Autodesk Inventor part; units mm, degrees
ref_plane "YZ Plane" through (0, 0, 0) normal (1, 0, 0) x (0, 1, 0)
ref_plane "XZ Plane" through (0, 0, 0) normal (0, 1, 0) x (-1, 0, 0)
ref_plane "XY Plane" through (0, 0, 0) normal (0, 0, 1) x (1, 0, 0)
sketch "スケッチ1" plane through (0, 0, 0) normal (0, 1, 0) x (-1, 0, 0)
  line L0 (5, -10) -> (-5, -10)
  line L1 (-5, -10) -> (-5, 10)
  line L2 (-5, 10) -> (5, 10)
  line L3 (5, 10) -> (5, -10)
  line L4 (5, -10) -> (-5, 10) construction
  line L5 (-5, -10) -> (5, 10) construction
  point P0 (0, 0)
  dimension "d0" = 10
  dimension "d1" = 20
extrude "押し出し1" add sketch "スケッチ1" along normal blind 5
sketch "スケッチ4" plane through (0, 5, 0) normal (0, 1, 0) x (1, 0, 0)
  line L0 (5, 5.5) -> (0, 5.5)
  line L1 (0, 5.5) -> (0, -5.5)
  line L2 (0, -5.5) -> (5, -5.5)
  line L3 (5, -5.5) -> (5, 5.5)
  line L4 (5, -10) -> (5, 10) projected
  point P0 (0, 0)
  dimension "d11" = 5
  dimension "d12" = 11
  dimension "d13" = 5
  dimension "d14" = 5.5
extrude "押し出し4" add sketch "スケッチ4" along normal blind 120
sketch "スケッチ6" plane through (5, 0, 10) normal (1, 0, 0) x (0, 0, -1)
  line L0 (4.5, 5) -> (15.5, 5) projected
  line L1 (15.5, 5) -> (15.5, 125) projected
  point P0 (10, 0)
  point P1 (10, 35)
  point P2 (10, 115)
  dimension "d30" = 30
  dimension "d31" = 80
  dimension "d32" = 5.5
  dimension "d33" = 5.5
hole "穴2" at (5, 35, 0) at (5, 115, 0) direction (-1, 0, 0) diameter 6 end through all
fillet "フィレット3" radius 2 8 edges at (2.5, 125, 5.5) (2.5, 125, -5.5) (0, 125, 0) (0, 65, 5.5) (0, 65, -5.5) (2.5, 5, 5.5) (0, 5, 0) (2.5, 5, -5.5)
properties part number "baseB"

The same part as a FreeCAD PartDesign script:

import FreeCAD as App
import Part
import Sketcher

V = App.Vector
Q = App.Units.Quantity


def edges_at(feature, points):
    """Names of the edges that pass closest to the given points."""
    edges = feature.Shape.Edges
    near = lambda p: min(range(len(edges)), key=lambda i: edges[i].distToShape(Part.Vertex(*p))[0])
    return sorted({f"Edge{near(p) + 1}" for p in points})

doc = App.newDocument("Part")
params = doc.addObject("Spreadsheet::Sheet", "Params")
for row, (alias, value) in enumerate([
    ("sketch1_width", "10 mm"),
    ("sketch1_height", "20 mm"),
    ("pad1_length", "5 mm"),
    ("sketch2_width", "5 mm"),
    ("sketch2_height", "11 mm"),
    ("pad2_length", "120 mm"),
    ("sketch3_diameter", "6 mm"),
    ("hole_diameter", "6 mm"),
    ("fillet_radius", "2 mm"),
], start=1):
    params.set(f"A{row}", alias)
    params.set(f"B{row}", "=" + value)
    params.setAlias(f"B{row}", alias)

body = doc.addObject("PartDesign::Body", "Body")

# Sketch on XZ plane
sketch1 = body.newObject("Sketcher::SketchObject", "Sketch")
sketch1.AttachmentSupport = (doc.getObject("XZ_Plane"), [""])
sketch1.MapMode = "FlatFace"
sketch1.addGeometry([
    Part.LineSegment(V(5, -10, 0), V(-5, -10, 0)),
    Part.LineSegment(V(-5, -10, 0), V(-5, 10, 0)),
    Part.LineSegment(V(-5, 10, 0), V(5, 10, 0)),
    Part.LineSegment(V(5, 10, 0), V(5, -10, 0)),
], False)
sketch1.addConstraint([
    Sketcher.Constraint("Coincident", 0, 2, 1, 1),
    Sketcher.Constraint("Coincident", 1, 2, 2, 1),
    Sketcher.Constraint("Coincident", 2, 2, 3, 1),
    Sketcher.Constraint("Coincident", 3, 2, 0, 1),
    Sketcher.Constraint("Horizontal", 0),
    Sketcher.Constraint("Vertical", 1),
    Sketcher.Constraint("Horizontal", 2),
    Sketcher.Constraint("Vertical", 3),
    Sketcher.Constraint("Symmetric", 0, 2, 2, 2, -1, 1),
    Sketcher.Constraint("DistanceX", 0, 2, 0, 1, Q("10 mm")),
    Sketcher.Constraint("DistanceY", 1, 1, 1, 2, Q("20 mm")),
])
sketch1.setExpression("Constraints[9]", "Params.sketch1_width")
sketch1.setExpression("Constraints[10]", "Params.sketch1_height")
pad1 = body.newObject("PartDesign::Pad", "Pad")
pad1.Profile = sketch1
pad1.setExpression("Length", "Params.pad1_length")
pad1.Reversed = True

# Sketch on XZ plane
sketch2 = body.newObject("Sketcher::SketchObject", "Sketch001")
sketch2.AttachmentSupport = (doc.getObject("XZ_Plane"), [""])
sketch2.MapMode = "FlatFace"
sketch2.AttachmentOffset = App.Placement(V(0, 0, -5), App.Rotation())
sketch2.addGeometry([
    Part.LineSegment(V(5, 6, 0), V(5, -6, 0)),
    Part.LineSegment(V(5, -6, 0), V(0, -6, 0)),
    Part.LineSegment(V(0, -6, 0), V(0, 6, 0)),
    Part.LineSegment(V(0, 6, 0), V(5, 6, 0)),
], False)
sketch2.addConstraint([
    Sketcher.Constraint("Coincident", 0, 2, 1, 1),
    Sketcher.Constraint("Coincident", 1, 2, 2, 1),
    Sketcher.Constraint("Coincident", 2, 2, 3, 1),
    Sketcher.Constraint("Coincident", 3, 2, 0, 1),
    Sketcher.Constraint("Vertical", 0),
    Sketcher.Constraint("Horizontal", 1),
    Sketcher.Constraint("Vertical", 2),
    Sketcher.Constraint("Horizontal", 3),
    Sketcher.Constraint("Symmetric", 1, 2, 2, 2, -1, 1),
    Sketcher.Constraint("DistanceX", 1, 2, 1, 1, Q("5 mm")),
    Sketcher.Constraint("DistanceY", 0, 2, 0, 1, Q("11 mm")),
])
sketch2.setExpression("Constraints[9]", "Params.sketch2_width")
sketch2.setExpression("Constraints[10]", "Params.sketch2_height")
pad2 = body.newObject("PartDesign::Pad", "Pad001")
pad2.Profile = sketch2
pad2.setExpression("Length", "Params.pad2_length")
pad2.Reversed = True

# Sketch on YZ plane
sketch3 = body.newObject("Sketcher::SketchObject", "Sketch002")
sketch3.AttachmentSupport = (doc.getObject("YZ_Plane"), [""])
sketch3.MapMode = "FlatFace"
sketch3.AttachmentOffset = App.Placement(V(0, 0, 5), App.Rotation())
sketch3.addGeometry([
    Part.Circle(V(35, 0, 0), V(0, 0, 1), 3),
    Part.Circle(V(115, 0, 0), V(0, 0, 1), 3),
], False)
sketch3.addConstraint([
    Sketcher.Constraint("Equal", 0, 1),
    Sketcher.Constraint("PointOnObject", 0, 3, -1),
    Sketcher.Constraint("PointOnObject", 1, 3, -1),
    Sketcher.Constraint("Diameter", 0, Q("6 mm")),
    Sketcher.Constraint("DistanceX", -1, 1, 0, 3, Q("35 mm")),
    Sketcher.Constraint("DistanceX", -1, 1, 1, 3, Q("115 mm")),
])
sketch3.setExpression("Constraints[3]", "Params.sketch3_diameter")
doc.recompute()
hole = body.newObject("PartDesign::Hole", "Hole")
hole.Profile = sketch3
hole.ThreadType = "None"
hole.setExpression("Diameter", "Params.hole_diameter")
hole.DepthType = "ThroughAll"
doc.recompute()

fillet = body.newObject("PartDesign::Fillet", "Fillet")
fillet.Base = (hole, edges_at(hole, [
    (2.5, 125, 5.5),
    (2.5, 125, -5.5),
    (0, 125, 0),
    (0, 65, 5.5),
    (0, 65, -5.5),
    (2.5, 5, 5.5),
    (0, 5, 0),
    (2.5, 5, -5.5),
]))
fillet.setExpression("Radius", "Params.fillet_radius")

doc.recompute()
